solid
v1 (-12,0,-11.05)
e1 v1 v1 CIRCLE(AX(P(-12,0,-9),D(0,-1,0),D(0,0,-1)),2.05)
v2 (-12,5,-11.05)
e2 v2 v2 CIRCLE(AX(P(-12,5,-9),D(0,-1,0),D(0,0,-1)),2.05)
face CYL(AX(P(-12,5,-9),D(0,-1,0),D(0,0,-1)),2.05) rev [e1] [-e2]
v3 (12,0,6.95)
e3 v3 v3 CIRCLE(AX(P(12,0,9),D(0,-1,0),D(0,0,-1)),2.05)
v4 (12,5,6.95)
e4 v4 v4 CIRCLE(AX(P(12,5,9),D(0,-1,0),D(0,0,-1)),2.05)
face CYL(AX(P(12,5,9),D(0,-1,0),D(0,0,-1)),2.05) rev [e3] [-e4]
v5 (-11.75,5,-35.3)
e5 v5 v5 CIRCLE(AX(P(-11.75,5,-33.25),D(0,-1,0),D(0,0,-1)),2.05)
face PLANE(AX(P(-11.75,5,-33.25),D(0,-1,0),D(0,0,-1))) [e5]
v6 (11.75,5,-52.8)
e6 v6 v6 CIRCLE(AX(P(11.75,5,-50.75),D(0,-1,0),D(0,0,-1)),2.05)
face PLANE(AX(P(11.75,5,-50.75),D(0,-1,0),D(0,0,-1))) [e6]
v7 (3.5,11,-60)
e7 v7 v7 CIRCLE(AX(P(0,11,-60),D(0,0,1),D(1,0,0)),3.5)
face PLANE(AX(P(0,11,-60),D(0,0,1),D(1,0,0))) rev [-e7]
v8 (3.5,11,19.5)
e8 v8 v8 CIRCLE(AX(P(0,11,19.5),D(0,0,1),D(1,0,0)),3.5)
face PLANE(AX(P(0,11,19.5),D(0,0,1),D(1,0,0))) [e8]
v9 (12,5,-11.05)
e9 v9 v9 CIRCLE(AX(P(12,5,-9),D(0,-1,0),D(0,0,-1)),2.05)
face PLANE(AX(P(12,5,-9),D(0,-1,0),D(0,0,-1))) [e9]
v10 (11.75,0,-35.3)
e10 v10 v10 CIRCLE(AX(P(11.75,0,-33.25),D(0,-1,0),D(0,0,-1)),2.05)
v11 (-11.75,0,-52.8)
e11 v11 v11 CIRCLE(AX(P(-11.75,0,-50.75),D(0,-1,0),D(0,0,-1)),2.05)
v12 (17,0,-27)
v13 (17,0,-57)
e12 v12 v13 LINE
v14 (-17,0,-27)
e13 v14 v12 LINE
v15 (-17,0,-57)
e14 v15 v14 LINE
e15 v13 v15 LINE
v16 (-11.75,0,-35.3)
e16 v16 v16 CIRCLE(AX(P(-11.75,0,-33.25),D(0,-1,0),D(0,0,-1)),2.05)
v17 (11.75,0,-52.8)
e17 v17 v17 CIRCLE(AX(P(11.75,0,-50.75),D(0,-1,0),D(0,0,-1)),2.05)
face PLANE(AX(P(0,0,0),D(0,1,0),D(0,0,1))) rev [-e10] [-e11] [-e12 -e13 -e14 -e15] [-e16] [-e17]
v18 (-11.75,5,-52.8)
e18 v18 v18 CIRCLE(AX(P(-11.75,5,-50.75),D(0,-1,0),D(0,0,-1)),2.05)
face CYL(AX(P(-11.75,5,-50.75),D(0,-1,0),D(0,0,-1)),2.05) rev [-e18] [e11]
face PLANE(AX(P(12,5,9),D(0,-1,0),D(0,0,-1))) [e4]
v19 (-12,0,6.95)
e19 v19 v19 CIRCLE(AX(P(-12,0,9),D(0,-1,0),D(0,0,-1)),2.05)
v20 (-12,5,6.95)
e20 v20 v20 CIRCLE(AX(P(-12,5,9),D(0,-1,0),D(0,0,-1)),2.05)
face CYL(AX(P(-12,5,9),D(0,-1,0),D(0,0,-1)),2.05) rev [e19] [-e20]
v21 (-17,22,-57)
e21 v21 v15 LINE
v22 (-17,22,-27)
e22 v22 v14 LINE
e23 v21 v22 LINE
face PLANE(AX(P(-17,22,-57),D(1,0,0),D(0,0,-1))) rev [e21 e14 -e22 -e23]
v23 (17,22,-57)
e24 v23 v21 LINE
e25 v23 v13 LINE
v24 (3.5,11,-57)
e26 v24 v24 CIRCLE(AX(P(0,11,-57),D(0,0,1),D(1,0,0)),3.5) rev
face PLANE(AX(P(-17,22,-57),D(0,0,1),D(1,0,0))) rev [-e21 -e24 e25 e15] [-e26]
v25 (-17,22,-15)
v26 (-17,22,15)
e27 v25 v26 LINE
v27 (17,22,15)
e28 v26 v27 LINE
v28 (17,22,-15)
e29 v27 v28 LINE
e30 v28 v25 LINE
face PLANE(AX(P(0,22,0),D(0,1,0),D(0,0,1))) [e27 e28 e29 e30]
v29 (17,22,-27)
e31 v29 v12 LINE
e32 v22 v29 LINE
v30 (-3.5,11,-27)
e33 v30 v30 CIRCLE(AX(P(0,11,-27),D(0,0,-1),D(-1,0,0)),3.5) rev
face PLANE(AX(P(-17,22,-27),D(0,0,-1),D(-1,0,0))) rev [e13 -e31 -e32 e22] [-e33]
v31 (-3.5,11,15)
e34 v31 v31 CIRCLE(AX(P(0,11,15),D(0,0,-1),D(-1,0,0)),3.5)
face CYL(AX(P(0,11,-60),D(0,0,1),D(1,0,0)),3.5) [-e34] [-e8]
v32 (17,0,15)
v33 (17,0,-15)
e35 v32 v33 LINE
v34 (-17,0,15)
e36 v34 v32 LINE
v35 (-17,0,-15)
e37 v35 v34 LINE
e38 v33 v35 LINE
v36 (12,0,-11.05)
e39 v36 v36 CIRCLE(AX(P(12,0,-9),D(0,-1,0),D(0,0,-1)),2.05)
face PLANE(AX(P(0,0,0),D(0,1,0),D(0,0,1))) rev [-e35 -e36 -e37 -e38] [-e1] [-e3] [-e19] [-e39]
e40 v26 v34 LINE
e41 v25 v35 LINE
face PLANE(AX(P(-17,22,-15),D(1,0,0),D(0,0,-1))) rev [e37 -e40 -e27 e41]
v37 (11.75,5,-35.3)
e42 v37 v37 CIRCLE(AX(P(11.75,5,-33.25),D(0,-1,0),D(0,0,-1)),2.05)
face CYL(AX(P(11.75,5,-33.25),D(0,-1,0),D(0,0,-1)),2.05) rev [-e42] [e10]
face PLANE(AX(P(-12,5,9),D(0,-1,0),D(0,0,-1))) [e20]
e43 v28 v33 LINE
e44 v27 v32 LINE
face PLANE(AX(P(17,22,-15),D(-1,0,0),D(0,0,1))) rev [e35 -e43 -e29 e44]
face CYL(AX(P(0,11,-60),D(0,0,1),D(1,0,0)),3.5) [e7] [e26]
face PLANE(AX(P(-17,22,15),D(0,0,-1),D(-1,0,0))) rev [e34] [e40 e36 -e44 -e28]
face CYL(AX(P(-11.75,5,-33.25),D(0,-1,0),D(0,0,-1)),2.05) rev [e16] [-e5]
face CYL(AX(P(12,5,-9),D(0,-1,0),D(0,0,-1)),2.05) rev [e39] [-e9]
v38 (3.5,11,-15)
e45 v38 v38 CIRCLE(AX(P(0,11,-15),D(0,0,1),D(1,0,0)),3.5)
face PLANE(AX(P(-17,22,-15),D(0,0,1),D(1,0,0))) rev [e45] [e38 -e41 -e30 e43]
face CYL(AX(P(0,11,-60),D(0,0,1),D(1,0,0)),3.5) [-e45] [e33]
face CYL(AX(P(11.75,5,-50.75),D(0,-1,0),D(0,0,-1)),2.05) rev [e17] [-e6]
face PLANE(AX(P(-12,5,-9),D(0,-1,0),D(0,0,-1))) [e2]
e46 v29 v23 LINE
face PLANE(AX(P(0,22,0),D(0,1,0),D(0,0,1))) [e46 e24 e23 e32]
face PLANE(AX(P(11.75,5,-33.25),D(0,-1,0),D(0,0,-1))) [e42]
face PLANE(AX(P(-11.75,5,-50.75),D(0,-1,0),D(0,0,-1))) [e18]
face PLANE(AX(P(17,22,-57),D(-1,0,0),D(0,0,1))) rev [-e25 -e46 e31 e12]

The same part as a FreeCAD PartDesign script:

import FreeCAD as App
import Part
import Sketcher
from FreeCAD import Vector

doc = App.newDocument("Part")
body = doc.addObject("PartDesign::Body", "Body")

# Sketch on XZ plane
sketch1 = doc.addObject("Sketcher::SketchObject", "Sketch")
body.addObject(sketch1)
sketch1.AttachmentSupport = (doc.XZ_Plane, [""])
sketch1.MapMode = "FlatFace"
sketch1.addGeometry(Part.LineSegment(Vector(-17, -15, 0), Vector(-17, 15, 0)), False)
sketch1.addGeometry(Part.LineSegment(Vector(-17, 15, 0), Vector(17, 15, 0)), False)
sketch1.addGeometry(Part.LineSegment(Vector(17, 15, 0), Vector(17, -15, 0)), False)
sketch1.addGeometry(Part.LineSegment(Vector(17, -15, 0), Vector(-17, -15, 0)), False)
sketch1.addConstraint(Sketcher.Constraint("Coincident", 0, 2, 1, 1))
sketch1.addConstraint(Sketcher.Constraint("Coincident", 1, 2, 2, 1))
sketch1.addConstraint(Sketcher.Constraint("Coincident", 2, 2, 3, 1))
sketch1.addConstraint(Sketcher.Constraint("Coincident", 3, 2, 0, 1))
sketch1.addConstraint(Sketcher.Constraint("Vertical", 0))
sketch1.addConstraint(Sketcher.Constraint("Horizontal", 1))
sketch1.addConstraint(Sketcher.Constraint("Vertical", 2))
sketch1.addConstraint(Sketcher.Constraint("Horizontal", 3))
sketch1.addConstraint(Sketcher.Constraint("Symmetric", 0, 2, 2, 2, -1, 1))
sketch1.addConstraint(Sketcher.Constraint("DistanceX", 1, 1, 1, 2, 34.0))
sketch1.addConstraint(Sketcher.Constraint("DistanceY", 0, 1, 0, 2, 30.0))
pad1 = doc.addObject("PartDesign::Pad", "Pad")
body.addObject(pad1)
pad1.Profile = sketch1
pad1.Length = 22
pad1.Reversed = True
body2 = doc.addObject("PartDesign::Body", "Body001")

# Sketch on XZ plane
sketch2 = doc.addObject("Sketcher::SketchObject", "Sketch001")
body2.addObject(sketch2)
sketch2.AttachmentSupport = (doc.getObject("XZ_Plane001"), [""])
sketch2.MapMode = "FlatFace"
sketch2.addGeometry(Part.LineSegment(Vector(-17, -57, 0), Vector(-17, -27, 0)), False)
sketch2.addGeometry(Part.LineSegment(Vector(-17, -27, 0), Vector(17, -27, 0)), False)
sketch2.addGeometry(Part.LineSegment(Vector(17, -27, 0), Vector(17, -57, 0)), False)
sketch2.addGeometry(Part.LineSegment(Vector(17, -57, 0), Vector(-17, -57, 0)), False)
sketch2.addConstraint(Sketcher.Constraint("Coincident", 0, 2, 1, 1))
sketch2.addConstraint(Sketcher.Constraint("Coincident", 1, 2, 2, 1))
sketch2.addConstraint(Sketcher.Constraint("Coincident", 2, 2, 3, 1))
sketch2.addConstraint(Sketcher.Constraint("Coincident", 3, 2, 0, 1))
sketch2.addConstraint(Sketcher.Constraint("Vertical", 0))
sketch2.addConstraint(Sketcher.Constraint("Horizontal", 1))
sketch2.addConstraint(Sketcher.Constraint("Vertical", 2))
sketch2.addConstraint(Sketcher.Constraint("Horizontal", 3))
sketch2.addConstraint(Sketcher.Constraint("DistanceX", 1, 1, 1, 2, 34.0))
sketch2.addConstraint(Sketcher.Constraint("DistanceY", 0, 1, 0, 2, 30.0))
sketch2.addConstraint(Sketcher.Constraint("DistanceX", 0, 2, -1, 1, 17.0))
sketch2.addConstraint(Sketcher.Constraint("DistanceY", 0, 2, -1, 1, 27.0))
pad2 = doc.addObject("PartDesign::Pad", "Pad001")
body2.addObject(pad2)
pad2.Profile = sketch2
pad2.Length = 22
pad2.Reversed = True
body.AllowCompound = True
doc.recompute()

boolean = doc.addObject("PartDesign::Boolean", "Boolean")
body.addObject(boolean)
boolean.Type = "Fuse"
boolean.addObjects([body2])

# Sketch on XY plane
sketch3 = doc.addObject("Sketcher::SketchObject", "Sketch002")
body.addObject(sketch3)
sketch3.AttachmentSupport = (doc.XY_Plane, [""])
sketch3.MapMode = "FlatFace"
sketch3.AttachmentOffset = App.Placement(Vector(0, 0, 15), App.Rotation())
sketch3.addGeometry(Part.Circle(Vector(0, 11, 0), Vector(0, 0, 1), 3.5), False)
sketch3.addConstraint(Sketcher.Constraint("PointOnObject", 0, 3, -2))
sketch3.addConstraint(Sketcher.Constraint("Diameter", 0, 7.0))
sketch3.addConstraint(Sketcher.Constraint("DistanceY", -1, 1, 0, 3, 11.0))
pad3 = doc.addObject("PartDesign::Pad", "Pad002")
body.addObject(pad3)
pad3.Profile = sketch3
pad3.Type = "TwoLengths"
pad3.Length = 4.5
pad3.Length2 = 75

# Sketch on XZ plane
sketch4 = doc.addObject("Sketcher::SketchObject", "Sketch003")
body.addObject(sketch4)
sketch4.AttachmentSupport = (doc.XZ_Plane, [""])
sketch4.MapMode = "FlatFace"
sketch4.addGeometry(Part.Circle(Vector(11.8, -33.2, 0), Vector(0, 0, 1), 2), False)
sketch4.addGeometry(Part.Circle(Vector(-11.8, -33.2, 0), Vector(0, 0, 1), 2), False)
sketch4.addGeometry(Part.Circle(Vector(-11.8, -50.8, 0), Vector(0, 0, 1), 2), False)
sketch4.addGeometry(Part.Circle(Vector(11.8, -50.8, 0), Vector(0, 0, 1), 2), False)
sketch4.addGeometry(Part.Circle(Vector(12, 9, 0), Vector(0, 0, 1), 2), False)
sketch4.addGeometry(Part.Circle(Vector(12, -9, 0), Vector(0, 0, 1), 2), False)
sketch4.addGeometry(Part.Circle(Vector(-12, -9, 0), Vector(0, 0, 1), 2), False)
sketch4.addGeometry(Part.Circle(Vector(-12, 9, 0), Vector(0, 0, 1), 2), False)
sketch4.addConstraint(Sketcher.Constraint("Equal", 0, 1))
sketch4.addConstraint(Sketcher.Constraint("Equal", 1, 2))
sketch4.addConstraint(Sketcher.Constraint("Equal", 2, 3))
sketch4.addConstraint(Sketcher.Constraint("Equal", 3, 4))
sketch4.addConstraint(Sketcher.Constraint("Equal", 4, 5))
sketch4.addConstraint(Sketcher.Constraint("Equal", 5, 6))
sketch4.addConstraint(Sketcher.Constraint("Equal", 6, 7))
sketch4.addConstraint(Sketcher.Constraint("Symmetric", 4, 3, 6, 3, -1, 1))
sketch4.addConstraint(Sketcher.Constraint("Symmetric", 5, 3, 7, 3, -1, 1))
sketch4.addConstraint(Sketcher.Constraint("Symmetric", 0, 3, 1, 3, -2))
sketch4.addConstraint(Sketcher.Constraint("Symmetric", 2, 3, 3, 3, -2))
sketch4.addConstraint(Sketcher.Constraint("Symmetric", 5, 3, 6, 3, -2))
sketch4.addConstraint(Sketcher.Constraint("Vertical", 1, 3, 2, 3))
sketch4.addConstraint(Sketcher.Constraint("Diameter", 0, 4.1))
sketch4.addConstraint(Sketcher.Constraint("DistanceX", -1, 1, 4, 3, 12.0))
sketch4.addConstraint(Sketcher.Constraint("DistanceY", -1, 1, 4, 3, 9.0))
sketch4.addConstraint(Sketcher.Constraint("DistanceX", 1, 3, 0, 3, 23.5))
sketch4.addConstraint(Sketcher.Constraint("DistanceY", 2, 3, 1, 3, 17.5))
sketch4.addConstraint(Sketcher.Constraint("DistanceY", 0, 3, -1, 1, 33.25))
pocket1 = doc.addObject("PartDesign::Pocket", "Pocket")
body.addObject(pocket1)
pocket1.Profile = sketch4
pocket1.Length = 5

doc.recompute()
